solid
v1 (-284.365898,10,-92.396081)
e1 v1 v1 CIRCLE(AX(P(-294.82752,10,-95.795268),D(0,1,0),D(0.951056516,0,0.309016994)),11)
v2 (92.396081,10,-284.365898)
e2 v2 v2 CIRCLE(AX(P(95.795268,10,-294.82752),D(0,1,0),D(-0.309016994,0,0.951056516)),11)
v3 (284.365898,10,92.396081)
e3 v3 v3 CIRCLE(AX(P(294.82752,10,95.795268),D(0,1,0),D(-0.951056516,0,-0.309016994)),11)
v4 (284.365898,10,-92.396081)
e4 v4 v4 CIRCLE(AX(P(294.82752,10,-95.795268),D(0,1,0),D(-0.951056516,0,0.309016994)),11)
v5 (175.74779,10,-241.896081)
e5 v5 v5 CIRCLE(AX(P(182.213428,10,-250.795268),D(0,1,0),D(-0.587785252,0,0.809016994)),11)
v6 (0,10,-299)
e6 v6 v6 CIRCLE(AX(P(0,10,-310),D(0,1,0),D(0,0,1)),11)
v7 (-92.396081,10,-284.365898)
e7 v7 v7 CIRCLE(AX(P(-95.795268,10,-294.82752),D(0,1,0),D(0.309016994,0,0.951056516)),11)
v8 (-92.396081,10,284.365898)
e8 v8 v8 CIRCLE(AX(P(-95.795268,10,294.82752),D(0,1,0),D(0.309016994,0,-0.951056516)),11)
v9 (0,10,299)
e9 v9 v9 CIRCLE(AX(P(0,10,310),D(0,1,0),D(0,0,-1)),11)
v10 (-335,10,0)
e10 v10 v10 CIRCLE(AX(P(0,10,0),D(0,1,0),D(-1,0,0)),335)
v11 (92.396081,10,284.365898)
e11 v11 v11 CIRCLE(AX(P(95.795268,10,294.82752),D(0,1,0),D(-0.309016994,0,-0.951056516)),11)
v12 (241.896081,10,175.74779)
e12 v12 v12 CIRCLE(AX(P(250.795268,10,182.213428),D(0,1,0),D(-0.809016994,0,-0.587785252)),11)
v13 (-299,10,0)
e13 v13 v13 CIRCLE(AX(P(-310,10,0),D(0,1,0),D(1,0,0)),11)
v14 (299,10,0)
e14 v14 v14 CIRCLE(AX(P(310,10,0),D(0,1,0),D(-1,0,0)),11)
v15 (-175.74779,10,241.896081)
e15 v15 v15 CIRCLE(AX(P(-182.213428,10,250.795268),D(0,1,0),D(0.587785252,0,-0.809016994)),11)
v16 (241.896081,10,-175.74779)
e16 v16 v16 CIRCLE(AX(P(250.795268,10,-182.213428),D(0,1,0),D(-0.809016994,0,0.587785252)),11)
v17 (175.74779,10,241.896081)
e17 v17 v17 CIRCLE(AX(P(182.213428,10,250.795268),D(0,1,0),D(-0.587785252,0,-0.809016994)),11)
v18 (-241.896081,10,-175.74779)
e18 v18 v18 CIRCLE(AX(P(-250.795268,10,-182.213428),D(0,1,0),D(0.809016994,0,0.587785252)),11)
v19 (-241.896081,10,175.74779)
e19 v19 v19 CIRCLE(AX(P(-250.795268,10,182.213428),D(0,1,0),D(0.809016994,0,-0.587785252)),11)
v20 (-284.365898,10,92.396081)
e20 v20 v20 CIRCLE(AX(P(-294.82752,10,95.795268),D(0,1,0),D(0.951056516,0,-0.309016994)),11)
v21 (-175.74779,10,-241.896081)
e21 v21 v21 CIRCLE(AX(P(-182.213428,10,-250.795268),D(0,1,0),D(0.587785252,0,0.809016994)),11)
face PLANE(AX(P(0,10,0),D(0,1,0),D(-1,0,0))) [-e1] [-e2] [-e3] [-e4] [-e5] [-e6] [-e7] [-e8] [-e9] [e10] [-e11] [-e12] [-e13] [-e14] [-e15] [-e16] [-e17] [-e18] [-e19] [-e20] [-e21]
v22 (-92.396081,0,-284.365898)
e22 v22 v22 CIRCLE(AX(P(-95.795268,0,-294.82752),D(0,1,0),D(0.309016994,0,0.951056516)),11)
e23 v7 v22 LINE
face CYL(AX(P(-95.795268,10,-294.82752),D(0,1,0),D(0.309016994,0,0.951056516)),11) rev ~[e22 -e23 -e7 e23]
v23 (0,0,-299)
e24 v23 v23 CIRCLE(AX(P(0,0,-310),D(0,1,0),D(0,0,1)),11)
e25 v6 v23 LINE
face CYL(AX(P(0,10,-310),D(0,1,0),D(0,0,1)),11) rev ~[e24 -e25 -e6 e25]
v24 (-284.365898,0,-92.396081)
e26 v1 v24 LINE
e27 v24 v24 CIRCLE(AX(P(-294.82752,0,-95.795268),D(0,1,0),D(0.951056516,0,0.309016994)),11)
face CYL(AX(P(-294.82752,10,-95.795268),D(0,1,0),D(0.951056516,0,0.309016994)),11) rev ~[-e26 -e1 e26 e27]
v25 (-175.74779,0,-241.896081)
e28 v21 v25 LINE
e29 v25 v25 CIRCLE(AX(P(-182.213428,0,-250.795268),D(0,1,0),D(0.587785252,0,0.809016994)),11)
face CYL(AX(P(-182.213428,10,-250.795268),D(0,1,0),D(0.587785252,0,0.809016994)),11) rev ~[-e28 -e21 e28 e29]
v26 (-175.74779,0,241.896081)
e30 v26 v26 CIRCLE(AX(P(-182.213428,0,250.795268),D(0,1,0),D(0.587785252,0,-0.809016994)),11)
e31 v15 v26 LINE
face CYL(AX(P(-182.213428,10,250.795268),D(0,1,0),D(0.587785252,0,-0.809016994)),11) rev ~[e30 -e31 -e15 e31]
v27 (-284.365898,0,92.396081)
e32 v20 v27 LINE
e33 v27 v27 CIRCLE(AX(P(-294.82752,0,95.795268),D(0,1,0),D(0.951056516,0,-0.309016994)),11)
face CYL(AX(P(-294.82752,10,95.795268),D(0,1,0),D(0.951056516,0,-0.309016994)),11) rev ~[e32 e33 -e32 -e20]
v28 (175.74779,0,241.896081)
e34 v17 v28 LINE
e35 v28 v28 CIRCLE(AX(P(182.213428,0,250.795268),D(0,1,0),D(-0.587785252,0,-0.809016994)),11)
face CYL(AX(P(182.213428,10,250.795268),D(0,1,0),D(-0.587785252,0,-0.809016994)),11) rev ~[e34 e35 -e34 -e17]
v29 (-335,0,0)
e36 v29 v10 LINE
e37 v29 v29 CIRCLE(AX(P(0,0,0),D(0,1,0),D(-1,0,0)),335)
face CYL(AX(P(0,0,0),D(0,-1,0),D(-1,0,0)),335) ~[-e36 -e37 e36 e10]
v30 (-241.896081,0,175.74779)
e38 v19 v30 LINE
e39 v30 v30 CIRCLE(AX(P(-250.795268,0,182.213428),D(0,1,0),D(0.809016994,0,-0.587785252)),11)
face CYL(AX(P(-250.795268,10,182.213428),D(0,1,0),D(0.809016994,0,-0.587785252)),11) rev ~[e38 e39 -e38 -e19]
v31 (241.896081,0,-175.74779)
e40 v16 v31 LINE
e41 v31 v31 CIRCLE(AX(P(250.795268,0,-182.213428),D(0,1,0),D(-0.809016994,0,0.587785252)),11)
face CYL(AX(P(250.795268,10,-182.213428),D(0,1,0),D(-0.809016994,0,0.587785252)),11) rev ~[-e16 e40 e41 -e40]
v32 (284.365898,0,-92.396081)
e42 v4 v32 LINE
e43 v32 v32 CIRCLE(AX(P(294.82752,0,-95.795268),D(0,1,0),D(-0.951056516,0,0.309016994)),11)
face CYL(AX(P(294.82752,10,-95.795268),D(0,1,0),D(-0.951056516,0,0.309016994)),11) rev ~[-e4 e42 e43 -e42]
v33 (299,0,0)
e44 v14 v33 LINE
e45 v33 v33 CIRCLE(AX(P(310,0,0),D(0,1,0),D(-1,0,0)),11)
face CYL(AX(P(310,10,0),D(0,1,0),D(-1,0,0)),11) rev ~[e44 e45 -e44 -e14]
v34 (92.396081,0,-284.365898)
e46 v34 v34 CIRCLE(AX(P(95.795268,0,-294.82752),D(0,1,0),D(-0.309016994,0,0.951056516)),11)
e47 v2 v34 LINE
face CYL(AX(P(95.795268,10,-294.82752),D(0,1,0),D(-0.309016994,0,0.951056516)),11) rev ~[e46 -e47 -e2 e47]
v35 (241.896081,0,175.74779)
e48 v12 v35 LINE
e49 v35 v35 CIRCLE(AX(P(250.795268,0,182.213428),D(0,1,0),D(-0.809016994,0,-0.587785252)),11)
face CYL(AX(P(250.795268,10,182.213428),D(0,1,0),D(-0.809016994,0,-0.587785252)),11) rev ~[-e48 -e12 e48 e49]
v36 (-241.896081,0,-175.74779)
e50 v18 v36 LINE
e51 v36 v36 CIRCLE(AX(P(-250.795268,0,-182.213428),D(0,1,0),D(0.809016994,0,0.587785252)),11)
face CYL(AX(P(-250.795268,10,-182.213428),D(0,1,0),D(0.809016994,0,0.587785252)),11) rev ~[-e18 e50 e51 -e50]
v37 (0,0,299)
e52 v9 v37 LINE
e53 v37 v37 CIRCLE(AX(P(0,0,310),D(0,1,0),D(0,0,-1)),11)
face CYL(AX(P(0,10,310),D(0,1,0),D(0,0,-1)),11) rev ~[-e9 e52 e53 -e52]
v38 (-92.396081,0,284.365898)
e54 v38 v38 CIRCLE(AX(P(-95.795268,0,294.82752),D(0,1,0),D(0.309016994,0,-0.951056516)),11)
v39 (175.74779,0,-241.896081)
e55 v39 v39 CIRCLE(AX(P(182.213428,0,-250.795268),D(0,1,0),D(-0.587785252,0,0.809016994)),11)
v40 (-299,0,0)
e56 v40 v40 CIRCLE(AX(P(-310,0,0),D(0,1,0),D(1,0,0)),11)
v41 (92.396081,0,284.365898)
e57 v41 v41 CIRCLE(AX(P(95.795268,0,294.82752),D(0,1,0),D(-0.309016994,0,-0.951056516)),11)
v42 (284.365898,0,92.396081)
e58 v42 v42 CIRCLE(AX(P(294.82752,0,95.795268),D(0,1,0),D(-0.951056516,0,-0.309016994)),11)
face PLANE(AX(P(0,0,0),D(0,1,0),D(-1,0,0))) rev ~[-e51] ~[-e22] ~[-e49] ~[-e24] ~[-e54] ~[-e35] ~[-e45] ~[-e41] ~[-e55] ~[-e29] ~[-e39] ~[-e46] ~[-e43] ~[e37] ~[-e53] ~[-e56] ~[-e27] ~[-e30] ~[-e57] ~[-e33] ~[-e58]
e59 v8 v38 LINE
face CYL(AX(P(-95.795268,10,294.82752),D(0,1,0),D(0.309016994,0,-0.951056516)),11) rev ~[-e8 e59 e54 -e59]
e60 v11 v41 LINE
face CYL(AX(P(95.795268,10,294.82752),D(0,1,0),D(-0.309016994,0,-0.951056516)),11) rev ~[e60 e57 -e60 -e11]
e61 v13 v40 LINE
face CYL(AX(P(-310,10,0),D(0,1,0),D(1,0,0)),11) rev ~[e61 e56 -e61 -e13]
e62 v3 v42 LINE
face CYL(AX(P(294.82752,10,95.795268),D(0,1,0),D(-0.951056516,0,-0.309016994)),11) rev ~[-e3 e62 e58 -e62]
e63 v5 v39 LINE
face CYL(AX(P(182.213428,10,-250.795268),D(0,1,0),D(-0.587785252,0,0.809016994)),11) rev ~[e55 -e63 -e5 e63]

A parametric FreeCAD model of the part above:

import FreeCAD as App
import Part
import Sketcher

V = App.Vector
Q = App.Units.Quantity

doc = App.newDocument("Part")
body = doc.addObject("PartDesign::Body", "Body")

sketch1 = doc.addObject("Sketcher::SketchObject", "Sketch")
body.addObject(sketch1)
sketch1.AttachmentSupport = (doc.XZ_Plane, [""])
sketch1.MapMode = "FlatFace"
sketch1.addGeometry(Part.Circle(V(0, 0, 0), V(0, 0, 1), 335), False)
sketch1.addConstraint([
    Sketcher.Constraint("Coincident", 0, 3, -1, 1),
    Sketcher.Constraint("Diameter", 0, Q("670 mm")),
])
pad1 = doc.addObject("PartDesign::Pad", "Pad")
body.addObject(pad1)
pad1.Profile = sketch1
pad1.Length = 10
pad1.Reversed = True

sketch2 = doc.addObject("Sketcher::SketchObject", "Sketch001")
body.addObject(sketch2)
sketch2.AttachmentSupport = (doc.XZ_Plane, [""])
sketch2.MapMode = "FlatFace"
sketch2.AttachmentOffset = App.Placement(V(0, 0, -10), App.Rotation())
sketch2.addGeometry(Part.Circle(V(-310, 0, 0), V(0, 0, 1), 11), False)
sketch2.addConstraint([
    Sketcher.Constraint("PointOnObject", 0, 3, -1),
    Sketcher.Constraint("Diameter", 0, Q("22 mm")),
    Sketcher.Constraint("DistanceX", 0, 3, -1, 1, Q("310 mm")),
])
pocket1 = doc.addObject("PartDesign::Pocket", "Pocket")
body.addObject(pocket1)
pocket1.Profile = sketch2
pocket1.Length = 10
pocket1.Reversed = True
doc.recompute()

polarpattern = doc.addObject("PartDesign::PolarPattern", "PolarPattern")
body.addObject(polarpattern)
polarpattern.Originals = [pocket1]
polarpattern.Axis = (doc.Y_Axis, [""])
polarpattern.Angle = 360
polarpattern.Occurrences = 20
body.Tip = polarpattern

doc.recompute()
